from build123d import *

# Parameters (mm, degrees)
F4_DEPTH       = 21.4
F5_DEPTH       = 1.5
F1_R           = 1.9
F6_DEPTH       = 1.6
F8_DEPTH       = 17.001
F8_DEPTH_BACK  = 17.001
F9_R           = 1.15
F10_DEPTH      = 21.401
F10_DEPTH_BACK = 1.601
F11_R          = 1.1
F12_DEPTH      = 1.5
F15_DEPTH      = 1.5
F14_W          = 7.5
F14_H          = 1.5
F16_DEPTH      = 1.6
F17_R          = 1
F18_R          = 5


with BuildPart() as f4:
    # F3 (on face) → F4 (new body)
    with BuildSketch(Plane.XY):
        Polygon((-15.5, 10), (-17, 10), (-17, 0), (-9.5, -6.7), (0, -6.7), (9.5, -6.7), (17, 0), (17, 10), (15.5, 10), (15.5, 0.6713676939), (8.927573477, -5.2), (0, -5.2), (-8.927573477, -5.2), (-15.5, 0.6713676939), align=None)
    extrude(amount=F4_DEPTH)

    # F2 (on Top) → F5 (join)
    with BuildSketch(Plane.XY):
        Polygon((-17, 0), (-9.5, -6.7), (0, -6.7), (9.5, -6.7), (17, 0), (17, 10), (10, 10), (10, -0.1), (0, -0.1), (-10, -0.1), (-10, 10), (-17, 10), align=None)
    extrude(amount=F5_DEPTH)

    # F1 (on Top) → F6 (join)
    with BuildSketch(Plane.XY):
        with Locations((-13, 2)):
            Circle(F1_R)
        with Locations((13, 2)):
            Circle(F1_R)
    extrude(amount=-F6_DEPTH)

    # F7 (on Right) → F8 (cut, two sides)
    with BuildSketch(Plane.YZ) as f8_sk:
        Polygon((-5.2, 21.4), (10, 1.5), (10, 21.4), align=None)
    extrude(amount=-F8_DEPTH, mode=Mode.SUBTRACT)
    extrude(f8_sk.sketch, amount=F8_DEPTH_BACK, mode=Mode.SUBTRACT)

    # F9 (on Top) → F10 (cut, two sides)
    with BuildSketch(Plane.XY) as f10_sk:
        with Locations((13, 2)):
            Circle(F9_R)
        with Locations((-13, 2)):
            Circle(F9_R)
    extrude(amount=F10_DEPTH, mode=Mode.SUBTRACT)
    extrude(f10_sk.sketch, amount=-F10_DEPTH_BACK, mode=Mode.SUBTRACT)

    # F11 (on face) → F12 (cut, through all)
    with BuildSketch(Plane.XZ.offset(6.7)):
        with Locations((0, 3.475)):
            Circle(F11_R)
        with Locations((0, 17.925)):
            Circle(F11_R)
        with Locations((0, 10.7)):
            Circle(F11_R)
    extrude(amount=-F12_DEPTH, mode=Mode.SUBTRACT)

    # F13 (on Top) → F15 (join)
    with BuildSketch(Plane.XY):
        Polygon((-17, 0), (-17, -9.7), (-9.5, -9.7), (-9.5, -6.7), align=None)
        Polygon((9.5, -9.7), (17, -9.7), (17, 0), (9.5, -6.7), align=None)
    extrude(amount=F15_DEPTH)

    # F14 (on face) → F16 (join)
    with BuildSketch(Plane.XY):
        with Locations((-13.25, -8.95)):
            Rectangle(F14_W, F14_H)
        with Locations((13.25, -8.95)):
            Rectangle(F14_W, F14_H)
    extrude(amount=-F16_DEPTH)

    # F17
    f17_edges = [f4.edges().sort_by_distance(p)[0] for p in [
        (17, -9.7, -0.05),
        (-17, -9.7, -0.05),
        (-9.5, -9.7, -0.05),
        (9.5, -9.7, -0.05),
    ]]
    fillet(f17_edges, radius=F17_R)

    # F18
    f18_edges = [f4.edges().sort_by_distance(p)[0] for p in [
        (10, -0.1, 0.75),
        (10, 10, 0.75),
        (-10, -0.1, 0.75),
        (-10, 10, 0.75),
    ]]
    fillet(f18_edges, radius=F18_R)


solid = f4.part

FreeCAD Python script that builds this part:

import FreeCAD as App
import Part
import Sketcher
from FreeCAD import Vector
Q = App.Units.Quantity


def edges_at(feature, points):
    """Names of the edges that pass closest to the given points."""
    edges = feature.Shape.Edges
    near = lambda p: min(range(len(edges)), key=lambda i: edges[i].distToShape(Part.Vertex(*p))[0])
    return sorted({f"Edge{near(p) + 1}" for p in points})


def add_polygon(sketch, points):
    """Adds a closed chain of lines whose ends are joined by coincident constraints."""
    first, n = sketch.GeometryCount, len(points)
    for a, b in zip(points, points[1:] + points[:1]):
        sketch.addGeometry(Part.LineSegment(App.Vector(*a, 0), App.Vector(*b, 0)), False)
    for i in range(n):
        sketch.addConstraint(Sketcher.Constraint("Coincident", first + i, 2, first + (i + 1) % n, 1))

doc = App.newDocument("Part")
body = doc.addObject("PartDesign::Body", "Body")

# Sketch on XY plane
sketch1 = body.newObject("Sketcher::SketchObject", "Sketch")
sketch1.AttachmentSupport = (doc.getObject("XY_Plane"), [""])
sketch1.MapMode = "FlatFace"
add_polygon(sketch1, [(-15.5, 10), (-17, 10), (-17, 0), (-9.5, -6.7), (9.5, -6.7), (17, 0), (17, 10), (15.5, 10), (15.5, 0.7), (8.9, -5.2), (-8.9, -5.2), (-15.5, 0.7)])  # lines 0-11
sketch1.addConstraint(Sketcher.Constraint("Horizontal", 0))
sketch1.addConstraint(Sketcher.Constraint("Vertical", 1))
sketch1.addConstraint(Sketcher.Constraint("Horizontal", 3))
sketch1.addConstraint(Sketcher.Constraint("Vertical", 5))
sketch1.addConstraint(Sketcher.Constraint("Horizontal", 6))
sketch1.addConstraint(Sketcher.Constraint("Vertical", 7))
sketch1.addConstraint(Sketcher.Constraint("Horizontal", 9))
sketch1.addConstraint(Sketcher.Constraint("Vertical", 11))
sketch1.addConstraint(Sketcher.Constraint("Symmetric", 1, 2, 4, 2, -1, 1))
sketch1.addConstraint(Sketcher.Constraint("Symmetric", 7, 2, 10, 2, -2))
sketch1.addConstraint(Sketcher.Constraint("PointOnObject", 1, 2, -1))
sketch1.addConstraint(Sketcher.Constraint("Parallel", 4, 8))
sketch1.addConstraint(Sketcher.Constraint("Parallel", 2, 10))
sketch1.addConstraint(Sketcher.Constraint("Horizontal", 0, 2, 5, 2))
sketch1.addConstraint(Sketcher.Constraint("Equal", 2, 4))
sketch1.addConstraint(Sketcher.Constraint("DistanceX", 3, 1, 3, 2, Q("19 mm")))
sketch1.addConstraint(Sketcher.Constraint("DistanceY", 1, 2, 1, 1, Q("10 mm")))
sketch1.addConstraint(Sketcher.Constraint("DistanceX", 0, 2, 0, 1, Q("1.5 mm")))
sketch1.addConstraint(Sketcher.Constraint("DistanceX", 0, 2, -1, 1, Q("17 mm")))
sketch1.addConstraint(Sketcher.Constraint("DistanceY", 2, 2, -1, 1, Q("6.7 mm")))
sketch1.addConstraint(Sketcher.Constraint("DistanceY", 8, 2, -1, 1, Q("5.2 mm")))
sketch1.addConstraint(Sketcher.Constraint("DistanceX", 9, 2, 9, 1, Q("17.855147 mm")))
pad1 = body.newObject("PartDesign::Pad", "Pad")
pad1.Profile = sketch1
pad1.Length = 21.4

# Sketch on XY plane
sketch2 = body.newObject("Sketcher::SketchObject", "Sketch001")
sketch2.AttachmentSupport = (doc.getObject("XY_Plane"), [""])
sketch2.MapMode = "FlatFace"
add_polygon(sketch2, [(-17, 0), (-10, -7), (10, -7), (17, 0), (17, 10), (10, 10), (10, 0), (-10, 0), (-10, 10), (-17, 10)])  # lines 0-9
sketch2.addConstraint(Sketcher.Constraint("Horizontal", 1))
sketch2.addConstraint(Sketcher.Constraint("Vertical", 3))
sketch2.addConstraint(Sketcher.Constraint("Horizontal", 4))
sketch2.addConstraint(Sketcher.Constraint("Vertical", 5))
sketch2.addConstraint(Sketcher.Constraint("Horizontal", 6))
sketch2.addConstraint(Sketcher.Constraint("Vertical", 7))
sketch2.addConstraint(Sketcher.Constraint("Horizontal", 8))
sketch2.addConstraint(Sketcher.Constraint("Vertical", 9))
sketch2.addConstraint(Sketcher.Constraint("Symmetric", 2, 2, 9, 2, -1, 1))
sketch2.addConstraint(Sketcher.Constraint("Symmetric", 4, 2, 7, 2, -2))
sketch2.addConstraint(Sketcher.Constraint("PointOnObject", 2, 2, -1))
sketch2.addConstraint(Sketcher.Constraint("Equal", 0, 2))
sketch2.addConstraint(Sketcher.Constraint("DistanceX", 1, 1, 1, 2, Q("19 mm")))
sketch2.addConstraint(Sketcher.Constraint("DistanceX", 4, 2, 4, 1, Q("7 mm")))
sketch2.addConstraint(Sketcher.Constraint("DistanceX", 6, 2, 6, 1, Q("20 mm")))
sketch2.addConstraint(Sketcher.Constraint("DistanceY", 3, 1, 3, 2, Q("10 mm")))
sketch2.addConstraint(Sketcher.Constraint("DistanceY", 5, 2, 5, 1, Q("10.1 mm")))
sketch2.addConstraint(Sketcher.Constraint("DistanceY", 0, 2, -1, 1, Q("6.7 mm")))
pad2 = body.newObject("PartDesign::Pad", "Pad001")
pad2.Profile = sketch2
pad2.Length = 1.5

# Sketch on XY plane
sketch3 = body.newObject("Sketcher::SketchObject", "Sketch002")
sketch3.AttachmentSupport = (doc.getObject("XY_Plane"), [""])
sketch3.MapMode = "FlatFace"
sketch3.addGeometry(Part.Circle(Vector(-13, 2, 0), Vector(0, 0, 1), 1.9), False)
sketch3.addGeometry(Part.Circle(Vector(13, 2, 0), Vector(0, 0, 1), 1.9), False)
sketch3.addConstraint(Sketcher.Constraint("Equal", 0, 1))
sketch3.addConstraint(Sketcher.Constraint("Symmetric", 0, 3, 1, 3, -2))
sketch3.addConstraint(Sketcher.Constraint("Diameter", 0, Q("3.8 mm")))
sketch3.addConstraint(Sketcher.Constraint("DistanceX", 0, 3, -1, 1, Q("13 mm")))
sketch3.addConstraint(Sketcher.Constraint("DistanceY", -1, 1, 0, 3, Q("2 mm")))
pad3 = body.newObject("PartDesign::Pad", "Pad002")
pad3.Profile = sketch3
pad3.Length = 1.6
pad3.Reversed = True

# Sketch on YZ plane
sketch4 = body.newObject("Sketcher::SketchObject", "Sketch003")
sketch4.AttachmentSupport = (doc.getObject("YZ_Plane"), [""])
sketch4.MapMode = "FlatFace"
add_polygon(sketch4, [(-5, 21), (10, 2), (10, 21)])  # lines 0-2
sketch4.addConstraint(Sketcher.Constraint("Vertical", 1))
sketch4.addConstraint(Sketcher.Constraint("Horizontal", 2))
sketch4.addConstraint(Sketcher.Constraint("DistanceX", 2, 2, 2, 1, Q("15.2 mm")))
sketch4.addConstraint(Sketcher.Constraint("DistanceY", 1, 1, 1, 2, Q("19.9 mm")))
sketch4.addConstraint(Sketcher.Constraint("DistanceX", -1, 1, 0, 2, Q("10 mm")))
sketch4.addConstraint(Sketcher.Constraint("DistanceY", -1, 1, 0, 2, Q("1.5 mm")))
pocket1 = body.newObject("PartDesign::Pocket", "Pocket")
pocket1.Profile = sketch4
pocket1.Type = "ThroughAll"
pocket1.Midplane = True

# Sketch on XY plane
sketch5 = body.newObject("Sketcher::SketchObject", "Sketch004")
sketch5.AttachmentSupport = (doc.getObject("XY_Plane"), [""])
sketch5.MapMode = "FlatFace"
sketch5.addGeometry(Part.Circle(Vector(13, 2, 0), Vector(0, 0, 1), 1.1), False)
sketch5.addGeometry(Part.Circle(Vector(-13, 2, 0), Vector(0, 0, 1), 1.1), False)
sketch5.addConstraint(Sketcher.Constraint("Equal", 0, 1))
sketch5.addConstraint(Sketcher.Constraint("Symmetric", 0, 3, 1, 3, -2))
sketch5.addConstraint(Sketcher.Constraint("Diameter", 0, Q("2.3 mm")))
sketch5.addConstraint(Sketcher.Constraint("DistanceX", -1, 1, 0, 3, Q("13 mm")))
sketch5.addConstraint(Sketcher.Constraint("DistanceY", -1, 1, 0, 3, Q("2 mm")))
pocket2 = body.newObject("PartDesign::Pocket", "Pocket001")
pocket2.Profile = sketch5
pocket2.Type = "ThroughAll"
pocket2.Midplane = True

# Sketch on XZ plane
sketch6 = body.newObject("Sketcher::SketchObject", "Sketch005")
sketch6.AttachmentSupport = (doc.getObject("XZ_Plane"), [""])
sketch6.MapMode = "FlatFace"
sketch6.AttachmentOffset = App.Placement(Vector(0, 0, 6.7), App.Rotation())
sketch6.addGeometry(Part.Circle(Vector(0, 3.5, 0), Vector(0, 0, 1), 1.1), False)
sketch6.addGeometry(Part.Circle(Vector(0, 17.9, 0), Vector(0, 0, 1), 1.1), False)
sketch6.addGeometry(Part.Circle(Vector(0, 10.7, 0), Vector(0, 0, 1), 1.1), False)
sketch6.addConstraint(Sketcher.Constraint("Equal", 0, 1))
sketch6.addConstraint(Sketcher.Constraint("Equal", 1, 2))
sketch6.addConstraint(Sketcher.Constraint("PointOnObject", 0, 3, -2))
sketch6.addConstraint(Sketcher.Constraint("PointOnObject", 1, 3, -2))
sketch6.addConstraint(Sketcher.Constraint("PointOnObject", 2, 3, -2))
sketch6.addConstraint(Sketcher.Constraint("Diameter", 0, Q("2.2 mm")))
sketch6.addConstraint(Sketcher.Constraint("DistanceY", -1, 1, 2, 3, Q("10.7 mm")))
sketch6.addConstraint(Sketcher.Constraint("DistanceY", 0, 3, 1, 3, Q("14.45 mm")))
sketch6.addConstraint(Sketcher.Constraint("DistanceY", -1, 1, 0, 3, Q("3.475 mm")))
pocket3 = body.newObject("PartDesign::Pocket", "Pocket002")
pocket3.Profile = sketch6
pocket3.Type = "ThroughAll"

# Sketch on XY plane
sketch7 = body.newObject("Sketcher::SketchObject", "Sketch006")
sketch7.AttachmentSupport = (doc.getObject("XY_Plane"), [""])
sketch7.MapMode = "FlatFace"
add_polygon(sketch7, [(-17, 0), (-17, -9.7), (-9.5, -9.7), (-9.5, -6.7)])  # lines 0-3
add_polygon(sketch7, [(9.5, -9.7), (17, -9.7), (17, 0), (9.5, -6.7)])  # lines 4-7
sketch7.addConstraint(Sketcher.Constraint("Vertical", 0))
sketch7.addConstraint(Sketcher.Constraint("Horizontal", 1))
sketch7.addConstraint(Sketcher.Constraint("Vertical", 2))
sketch7.addConstraint(Sketcher.Constraint("Horizontal", 4))
sketch7.addConstraint(Sketcher.Constraint("Vertical", 5))
sketch7.addConstraint(Sketcher.Constraint("Vertical", 7))
sketch7.addConstraint(Sketcher.Constraint("Symmetric", 3, 2, 5, 2, -1, 1))
sketch7.addConstraint(Sketcher.Constraint("Symmetric", 2, 2, 6, 2, -2))
sketch7.addConstraint(Sketcher.Constraint("PointOnObject", 3, 2, -1))
sketch7.addConstraint(Sketcher.Constraint("Horizontal", 1, 2, 4, 2))
sketch7.addConstraint(Sketcher.Constraint("DistanceY", 2, 1, 2, 2, Q("3 mm")))
sketch7.addConstraint(Sketcher.Constraint("DistanceX", 1, 1, 1, 2, Q("7.5 mm")))
sketch7.addConstraint(Sketcher.Constraint("DistanceY", 0, 2, 0, 1, Q("9.7 mm")))
sketch7.addConstraint(Sketcher.Constraint("DistanceX", 0, 2, -1, 1, Q("17 mm")))
pad4 = body.newObject("PartDesign::Pad", "Pad003")
pad4.Profile = sketch7
pad4.Length = 1.5

# Sketch on XY plane
sketch8 = body.newObject("Sketcher::SketchObject", "Sketch007")
sketch8.AttachmentSupport = (doc.getObject("XY_Plane"), [""])
sketch8.MapMode = "FlatFace"
add_polygon(sketch8, [(-17, -8.2), (-17, -9.7), (-9.5, -9.7), (-9.5, -8.2)])  # lines 0-3
add_polygon(sketch8, [(9.5, -8.2), (9.5, -9.7), (17, -9.7), (17, -8.2)])  # lines 4-7
sketch8.addConstraint(Sketcher.Constraint("Vertical", 0))
sketch8.addConstraint(Sketcher.Constraint("Horizontal", 1))
sketch8.addConstraint(Sketcher.Constraint("Vertical", 2))
sketch8.addConstraint(Sketcher.Constraint("Horizontal", 3))
sketch8.addConstraint(Sketcher.Constraint("Vertical", 4))
sketch8.addConstraint(Sketcher.Constraint("Horizontal", 5))
sketch8.addConstraint(Sketcher.Constraint("Vertical", 6))
sketch8.addConstraint(Sketcher.Constraint("Horizontal", 7))
sketch8.addConstraint(Sketcher.Constraint("Symmetric", 1, 2, 4, 2, -2))
sketch8.addConstraint(Sketcher.Constraint("Symmetric", 3, 2, 6, 2, -2))
sketch8.addConstraint(Sketcher.Constraint("DistanceX", 1, 1, 1, 2, Q("7.5 mm")))
sketch8.addConstraint(Sketcher.Constraint("DistanceY", 0, 2, 0, 1, Q("1.5 mm")))
sketch8.addConstraint(Sketcher.Constraint("DistanceX", 0, 2, -1, 1, Q("17 mm")))
sketch8.addConstraint(Sketcher.Constraint("DistanceY", 0, 2, -1, 1, Q("9.7 mm")))
pad5 = body.newObject("PartDesign::Pad", "Pad004")
pad5.Profile = sketch8
pad5.Length = 1.6
pad5.Reversed = True
doc.recompute()

fillet = body.newObject("PartDesign::Fillet", "Fillet")
fillet.Base = (pad5, edges_at(pad5, [
    (17, -9.7, -0.05),
    (-17, -9.7, -0.05),
    (-9.5, -9.7, -0.05),
    (9.5, -9.7, -0.05),
]))
fillet.Radius = 1
doc.recompute()

fillet2 = body.newObject("PartDesign::Fillet", "Fillet001")
fillet2.Base = (fillet, edges_at(fillet, [
    (10, -0.1, 0.75),
    (10, 10, 0.75),
    (-10, -0.1, 0.75),
    (-10, 10, 0.75),
]))
fillet2.Radius = 5

doc.recompute()
